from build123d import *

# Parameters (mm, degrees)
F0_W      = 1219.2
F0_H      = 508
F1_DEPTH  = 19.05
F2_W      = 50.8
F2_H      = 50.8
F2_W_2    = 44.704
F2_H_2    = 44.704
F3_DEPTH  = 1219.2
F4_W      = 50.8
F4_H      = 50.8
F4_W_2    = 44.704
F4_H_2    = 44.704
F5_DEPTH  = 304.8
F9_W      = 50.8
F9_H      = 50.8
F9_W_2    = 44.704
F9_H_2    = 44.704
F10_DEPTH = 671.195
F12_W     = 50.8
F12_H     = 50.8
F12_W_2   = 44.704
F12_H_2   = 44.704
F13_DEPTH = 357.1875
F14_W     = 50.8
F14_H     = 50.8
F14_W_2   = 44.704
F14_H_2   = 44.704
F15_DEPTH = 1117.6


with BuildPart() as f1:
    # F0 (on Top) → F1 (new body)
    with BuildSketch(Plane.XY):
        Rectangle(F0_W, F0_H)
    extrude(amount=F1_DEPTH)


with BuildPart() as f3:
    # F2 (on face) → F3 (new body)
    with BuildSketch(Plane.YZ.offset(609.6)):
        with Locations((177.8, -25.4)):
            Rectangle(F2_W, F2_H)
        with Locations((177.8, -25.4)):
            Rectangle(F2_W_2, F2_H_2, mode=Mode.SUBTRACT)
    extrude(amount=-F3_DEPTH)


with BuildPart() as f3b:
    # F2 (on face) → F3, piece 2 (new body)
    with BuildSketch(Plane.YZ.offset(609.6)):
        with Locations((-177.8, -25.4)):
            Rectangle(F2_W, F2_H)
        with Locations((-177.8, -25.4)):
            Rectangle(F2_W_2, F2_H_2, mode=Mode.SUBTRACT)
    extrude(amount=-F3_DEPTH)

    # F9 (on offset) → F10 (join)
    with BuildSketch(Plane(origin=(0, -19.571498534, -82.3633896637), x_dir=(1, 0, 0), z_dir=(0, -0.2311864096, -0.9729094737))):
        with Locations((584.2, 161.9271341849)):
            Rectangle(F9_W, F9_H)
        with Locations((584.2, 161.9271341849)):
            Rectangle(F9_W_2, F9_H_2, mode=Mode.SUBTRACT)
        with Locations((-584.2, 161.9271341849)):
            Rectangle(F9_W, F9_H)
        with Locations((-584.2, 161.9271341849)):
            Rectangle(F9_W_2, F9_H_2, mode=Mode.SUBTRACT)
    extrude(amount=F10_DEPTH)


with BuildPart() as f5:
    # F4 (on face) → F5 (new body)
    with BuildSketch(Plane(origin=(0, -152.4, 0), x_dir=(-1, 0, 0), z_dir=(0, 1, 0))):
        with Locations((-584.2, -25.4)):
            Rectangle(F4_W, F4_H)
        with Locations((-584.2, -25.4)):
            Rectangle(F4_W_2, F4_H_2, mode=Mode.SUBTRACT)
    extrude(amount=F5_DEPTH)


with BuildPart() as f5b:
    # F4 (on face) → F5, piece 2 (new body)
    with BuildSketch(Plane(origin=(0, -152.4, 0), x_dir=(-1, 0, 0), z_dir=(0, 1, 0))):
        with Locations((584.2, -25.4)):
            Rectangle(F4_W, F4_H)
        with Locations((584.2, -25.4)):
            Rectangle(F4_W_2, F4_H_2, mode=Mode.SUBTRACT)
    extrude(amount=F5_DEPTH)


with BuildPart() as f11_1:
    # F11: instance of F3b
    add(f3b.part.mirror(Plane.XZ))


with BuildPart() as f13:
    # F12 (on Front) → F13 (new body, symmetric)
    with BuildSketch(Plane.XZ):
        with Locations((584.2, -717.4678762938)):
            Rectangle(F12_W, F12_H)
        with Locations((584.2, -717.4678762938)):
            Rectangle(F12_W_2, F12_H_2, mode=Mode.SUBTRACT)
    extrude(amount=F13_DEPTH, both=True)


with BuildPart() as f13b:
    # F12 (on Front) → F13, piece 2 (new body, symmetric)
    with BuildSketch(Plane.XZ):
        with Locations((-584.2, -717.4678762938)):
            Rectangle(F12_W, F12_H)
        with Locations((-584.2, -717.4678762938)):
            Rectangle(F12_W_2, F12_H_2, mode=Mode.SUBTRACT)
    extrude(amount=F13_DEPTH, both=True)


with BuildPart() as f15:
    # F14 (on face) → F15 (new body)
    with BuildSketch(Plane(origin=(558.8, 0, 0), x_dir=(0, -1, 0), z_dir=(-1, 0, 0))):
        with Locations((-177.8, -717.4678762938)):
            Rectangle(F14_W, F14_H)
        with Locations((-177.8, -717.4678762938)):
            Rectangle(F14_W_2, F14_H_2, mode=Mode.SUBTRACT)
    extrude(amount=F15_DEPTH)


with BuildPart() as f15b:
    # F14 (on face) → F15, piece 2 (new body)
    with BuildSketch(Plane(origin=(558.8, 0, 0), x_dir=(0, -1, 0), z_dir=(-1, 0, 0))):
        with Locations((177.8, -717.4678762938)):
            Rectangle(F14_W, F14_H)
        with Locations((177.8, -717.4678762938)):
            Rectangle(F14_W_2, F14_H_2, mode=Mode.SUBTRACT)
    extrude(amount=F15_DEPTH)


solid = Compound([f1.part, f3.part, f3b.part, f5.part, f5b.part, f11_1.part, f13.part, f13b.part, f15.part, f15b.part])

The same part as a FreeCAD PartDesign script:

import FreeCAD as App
import Part
import Sketcher
from FreeCAD import Vector
Q = App.Units.Quantity


def add_polygon(sketch, points):
    """Adds a closed chain of lines whose ends are joined by coincident constraints."""
    first, n = sketch.GeometryCount, len(points)
    for a, b in zip(points, points[1:] + points[:1]):
        sketch.addGeometry(Part.LineSegment(App.Vector(*a, 0), App.Vector(*b, 0)), False)
    for i in range(n):
        sketch.addConstraint(Sketcher.Constraint("Coincident", first + i, 2, first + (i + 1) % n, 1))

doc = App.newDocument("Part")
body = doc.addObject("PartDesign::Body", "Body")

sketch1 = doc.addObject("Sketcher::SketchObject", "Sketch")
body.addObject(sketch1)
sketch1.AttachmentSupport = (doc.XY_Plane, [""])
sketch1.MapMode = "FlatFace"
add_polygon(sketch1, [(-610, 254), (-610, -254), (610, -254), (610, 254)])
sketch1.addConstraint([
    Sketcher.Constraint("Vertical", 0),
    Sketcher.Constraint("Horizontal", 1),
    Sketcher.Constraint("Vertical", 2),
    Sketcher.Constraint("Horizontal", 3),
    Sketcher.Constraint("Symmetric", 0, 2, 2, 2, -1, 1),
    Sketcher.Constraint("DistanceX", 1, 1, 1, 2, Q("48 in")),
    Sketcher.Constraint("DistanceY", 0, 2, 0, 1, Q("20 in")),
])
pad1 = doc.addObject("PartDesign::Pad", "Pad")
body.addObject(pad1)
pad1.Profile = sketch1
pad1.Length = Q("0.75 in")
body2 = doc.addObject("PartDesign::Body", "Body001")

sketch2 = doc.addObject("Sketcher::SketchObject", "Sketch001")
body2.addObject(sketch2)
sketch2.AttachmentSupport = (doc.getObject("YZ_Plane001"), [""])
sketch2.MapMode = "FlatFace"
sketch2.AttachmentOffset = App.Placement(Vector(0, 0, 24 * 25.4), App.Rotation())
add_polygon(sketch2, [(152, 0), (152, -51), (203, -51), (203, 0)])
add_polygon(sketch2, [(200, -48), (155, -48), (155, -3), (200, -3)])
sketch2.addConstraint([
    Sketcher.Constraint("Vertical", 0),
    Sketcher.Constraint("Horizontal", 1),
    Sketcher.Constraint("Vertical", 2),
    Sketcher.Constraint("Horizontal", 3),
    Sketcher.Constraint("Horizontal", 4),
    Sketcher.Constraint("Vertical", 5),
    Sketcher.Constraint("Horizontal", 6),
    Sketcher.Constraint("Vertical", 7),
    Sketcher.Constraint("PointOnObject", 2, 2, -1),
    Sketcher.Constraint("Equal", 3, 0),
    Sketcher.Constraint("Equal", 6, 5),
    Sketcher.Constraint("DistanceX", 1, 1, 1, 2, Q("2 in")),
    Sketcher.Constraint("DistanceX", -1, 1, 0, 2, Q("6 in")),
    Sketcher.Constraint("DistanceX", 4, 2, 4, 1, Q("1.76 in")),
    Sketcher.Constraint("DistanceX", -1, 1, 4, 2, Q("6.12 in")),
    Sketcher.Constraint("DistanceY", 4, 2, -1, 1, Q("1.88 in")),
])
pad2 = doc.addObject("PartDesign::Pad", "Pad001")
body2.addObject(pad2)
pad2.Profile = sketch2
pad2.Length = Q("48 in")
pad2.Reversed = True
body3 = doc.addObject("PartDesign::Body", "Body002")

sketch3 = doc.addObject("Sketcher::SketchObject", "Sketch002")
body3.addObject(sketch3)
sketch3.AttachmentSupport = (doc.getObject("YZ_Plane002"), [""])
sketch3.MapMode = "FlatFace"
sketch3.AttachmentOffset = App.Placement(Vector(0, 0, 24 * 25.4), App.Rotation())
add_polygon(sketch3, [(-203, 0), (-203, -51), (-152, -51), (-152, 0)])
add_polygon(sketch3, [(-155, -48), (-200, -48), (-200, -3), (-155, -3)])
sketch3.addConstraint([
    Sketcher.Constraint("Vertical", 0),
    Sketcher.Constraint("Horizontal", 1),
    Sketcher.Constraint("Vertical", 2),
    Sketcher.Constraint("Horizontal", 3),
    Sketcher.Constraint("Horizontal", 4),
    Sketcher.Constraint("Vertical", 5),
    Sketcher.Constraint("Horizontal", 6),
    Sketcher.Constraint("Vertical", 7),
    Sketcher.Constraint("PointOnObject", 2, 2, -1),
    Sketcher.Constraint("Equal", 3, 0),
    Sketcher.Constraint("Equal", 6, 5),
    Sketcher.Constraint("DistanceX", 1, 1, 1, 2, Q("2 in")),
    Sketcher.Constraint("DistanceX", 0, 2, -1, 1, Q("8 in")),
    Sketcher.Constraint("DistanceX", 4, 2, 4, 1, Q("1.76 in")),
    Sketcher.Constraint("DistanceX", 4, 2, -1, 1, Q("7.88 in")),
    Sketcher.Constraint("DistanceY", 4, 2, -1, 1, Q("1.88 in")),
])
pad3 = doc.addObject("PartDesign::Pad", "Pad002")
body3.addObject(pad3)
pad3.Profile = sketch3
pad3.Length = Q("48 in")
pad3.Reversed = True

sketch4 = doc.addObject("Sketcher::SketchObject", "Sketch003")
body3.addObject(sketch4)
sketch4.Placement = App.Placement(Vector(0, -19.571499, -82.36339), App.Rotation(Vector(1, 0, 0), Vector(0, -0.972909474, 0.23118641), Vector(0, -0.23118641, -0.972909474), "ZXY"))
add_polygon(sketch4, [(559, 187), (559, 137), (610, 137), (610, 187)])
add_polygon(sketch4, [(607, 140), (562, 140), (562, 184), (607, 184)])
add_polygon(sketch4, [(-610, 187), (-610, 137), (-559, 137), (-559, 187)])
add_polygon(sketch4, [(-562, 140), (-607, 140), (-607, 184), (-562, 184)])
sketch4.addConstraint([
    Sketcher.Constraint("Vertical", 0),
    Sketcher.Constraint("Horizontal", 1),
    Sketcher.Constraint("Vertical", 2),
    Sketcher.Constraint("Horizontal", 3),
    Sketcher.Constraint("Horizontal", 4),
    Sketcher.Constraint("Vertical", 5),
    Sketcher.Constraint("Horizontal", 6),
    Sketcher.Constraint("Vertical", 7),
    Sketcher.Constraint("Vertical", 8),
    Sketcher.Constraint("Horizontal", 9),
    Sketcher.Constraint("Vertical", 10),
    Sketcher.Constraint("Horizontal", 11),
    Sketcher.Constraint("Horizontal", 12),
    Sketcher.Constraint("Vertical", 13),
    Sketcher.Constraint("Horizontal", 14),
    Sketcher.Constraint("Vertical", 15),
    Sketcher.Constraint("Symmetric", 1, 2, 8, 2, -2),
    Sketcher.Constraint("Symmetric", 3, 2, 10, 2, -2),
    Sketcher.Constraint("Symmetric", 7, 2, 12, 2, -2),
    Sketcher.Constraint("Symmetric", 5, 2, 14, 2, -2),
    Sketcher.Constraint("Equal", 11, 0),
    Sketcher.Constraint("Equal", 14, 5),
    Sketcher.Constraint("DistanceX", 1, 1, 1, 2, Q("2 in")),
    Sketcher.Constraint("DistanceX", -1, 1, 0, 2, Q("22 in")),
    Sketcher.Constraint("DistanceX", 4, 2, 4, 1, Q("1.76 in")),
    Sketcher.Constraint("DistanceX", -1, 1, 4, 2, Q("22.12 in")),
    Sketcher.Constraint("DistanceY", 0, 2, 4, 2, Q("0.12 in")),
    Sketcher.Constraint("DistanceY", -1, 1, 0, 2, Q("136.527134 mm")),
])
pad4 = doc.addObject("PartDesign::Pad", "Pad003")
body3.addObject(pad4)
pad4.Profile = sketch4
pad4.Length = Q("26.425 in")
body4 = doc.addObject("PartDesign::Body", "Body003")

sketch5 = doc.addObject("Sketcher::SketchObject", "Sketch004")
body4.addObject(sketch5)
sketch5.AttachmentSupport = (doc.getObject("XZ_Plane003"), [""])
sketch5.MapMode = "FlatFace"
sketch5.AttachmentOffset = App.Placement(Vector(0, 0, 6 * 25.4), App.Rotation())
add_polygon(sketch5, [(610, 0), (610, -51), (559, -51), (559, 0)])
add_polygon(sketch5, [(562, -48), (607, -48), (607, -3), (562, -3)])
sketch5.addConstraint([
    Sketcher.Constraint("Vertical", 0),
    Sketcher.Constraint("Horizontal", 1),
    Sketcher.Constraint("Vertical", 2),
    Sketcher.Constraint("Horizontal", 3),
    Sketcher.Constraint("Horizontal", 4),
    Sketcher.Constraint("Vertical", 5),
    Sketcher.Constraint("Horizontal", 6),
    Sketcher.Constraint("Vertical", 7),
    Sketcher.Constraint("PointOnObject", 2, 2, -1),
    Sketcher.Constraint("Equal", 3, 0),
    Sketcher.Constraint("Equal", 6, 5),
    Sketcher.Constraint("DistanceX", 1, 2, 1, 1, Q("2 in")),
    Sketcher.Constraint("DistanceX", -1, 1, 0, 2, Q("24 in")),
    Sketcher.Constraint("DistanceX", 4, 1, 4, 2, Q("1.76 in")),
    Sketcher.Constraint("DistanceX", -1, 1, 4, 2, Q("23.88 in")),
    Sketcher.Constraint("DistanceY", 4, 2, -1, 1, Q("1.88 in")),
])
pad5 = doc.addObject("PartDesign::Pad", "Pad004")
body4.addObject(pad5)
pad5.Profile = sketch5
pad5.Length = Q("12 in")
pad5.Reversed = True
body5 = doc.addObject("PartDesign::Body", "Body004")

sketch6 = doc.addObject("Sketcher::SketchObject", "Sketch005")
body5.addObject(sketch6)
sketch6.AttachmentSupport = (doc.getObject("XZ_Plane004"), [""])
sketch6.MapMode = "FlatFace"
sketch6.AttachmentOffset = App.Placement(Vector(0, 0, 6 * 25.4), App.Rotation())
add_polygon(sketch6, [(-559, 0), (-559, -51), (-610, -51), (-610, 0)])
add_polygon(sketch6, [(-607, -48), (-562, -48), (-562, -3), (-607, -3)])
sketch6.addConstraint([
    Sketcher.Constraint("Vertical", 0),
    Sketcher.Constraint("Horizontal", 1),
    Sketcher.Constraint("Vertical", 2),
    Sketcher.Constraint("Horizontal", 3),
    Sketcher.Constraint("Horizontal", 4),
    Sketcher.Constraint("Vertical", 5),
    Sketcher.Constraint("Horizontal", 6),
    Sketcher.Constraint("Vertical", 7),
    Sketcher.Constraint("PointOnObject", 2, 2, -1),
    Sketcher.Constraint("Equal", 3, 0),
    Sketcher.Constraint("Equal", 6, 5),
    Sketcher.Constraint("DistanceX", 1, 2, 1, 1, Q("2 in")),
    Sketcher.Constraint("DistanceX", 0, 2, -1, 1, Q("22 in")),
    Sketcher.Constraint("DistanceX", 4, 1, 4, 2, Q("1.76 in")),
    Sketcher.Constraint("DistanceX", 4, 2, -1, 1, Q("22.12 in")),
    Sketcher.Constraint("DistanceY", 4, 2, -1, 1, Q("1.88 in")),
])
pad6 = doc.addObject("PartDesign::Pad", "Pad005")
body5.addObject(pad6)
pad6.Profile = sketch6
pad6.Length = Q("12 in")
pad6.Reversed = True
body6 = doc.addObject("PartDesign::Body", "Body005")
doc.recompute()

mirroring = doc.addObject("Part::Mirroring", "Mirroring")
mirroring.Source = body3
mirroring.Base = Vector(0, 0, 0)
mirroring.Normal = Vector(0, -1, 0)
body6.BaseFeature = mirroring
doc.recompute()
body7 = doc.addObject("PartDesign::Body", "Body006")

sketch7 = doc.addObject("Sketcher::SketchObject", "Sketch006")
body7.addObject(sketch7)
sketch7.AttachmentSupport = (doc.getObject("XZ_Plane006"), [""])
sketch7.MapMode = "FlatFace"
add_polygon(sketch7, [(559, -692), (559, -743), (610, -743), (610, -692)])
add_polygon(sketch7, [(607, -740), (562, -740), (562, -695), (607, -695)])
sketch7.addConstraint([
    Sketcher.Constraint("Vertical", 0),
    Sketcher.Constraint("Horizontal", 1),
    Sketcher.Constraint("Vertical", 2),
    Sketcher.Constraint("Horizontal", 3),
    Sketcher.Constraint("Horizontal", 4),
    Sketcher.Constraint("Vertical", 5),
    Sketcher.Constraint("Horizontal", 6),
    Sketcher.Constraint("Vertical", 7),
    Sketcher.Constraint("Equal", 3, 0),
    Sketcher.Constraint("Equal", 6, 5),
    Sketcher.Constraint("DistanceX", 1, 1, 1, 2, Q("2 in")),
    Sketcher.Constraint("DistanceX", -1, 1, 0, 2, Q("22 in")),
    Sketcher.Constraint("DistanceX", 4, 2, 4, 1, Q("1.76 in")),
    Sketcher.Constraint("DistanceX", -1, 1, 4, 2, Q("22.12 in")),
    Sketcher.Constraint("DistanceY", 0, 2, 4, 2, Q("0.12 in")),
    Sketcher.Constraint("DistanceY", 0, 2, -1, 1, Q("742.867876 mm")),
])
pad7 = doc.addObject("PartDesign::Pad", "Pad006")
body7.addObject(pad7)
pad7.Profile = sketch7
pad7.Length = Q("28.125 in")
pad7.Midplane = True
body8 = doc.addObject("PartDesign::Body", "Body007")

sketch8 = doc.addObject("Sketcher::SketchObject", "Sketch007")
body8.addObject(sketch8)
sketch8.AttachmentSupport = (doc.getObject("XZ_Plane007"), [""])
sketch8.MapMode = "FlatFace"
add_polygon(sketch8, [(-610, -692), (-610, -743), (-559, -743), (-559, -692)])
add_polygon(sketch8, [(-562, -740), (-607, -740), (-607, -695), (-562, -695)])
sketch8.addConstraint([
    Sketcher.Constraint("Vertical", 0),
    Sketcher.Constraint("Horizontal", 1),
    Sketcher.Constraint("Vertical", 2),
    Sketcher.Constraint("Horizontal", 3),
    Sketcher.Constraint("Horizontal", 4),
    Sketcher.Constraint("Vertical", 5),
    Sketcher.Constraint("Horizontal", 6),
    Sketcher.Constraint("Vertical", 7),
    Sketcher.Constraint("Equal", 3, 0),
    Sketcher.Constraint("Equal", 6, 5),
    Sketcher.Constraint("DistanceX", 1, 1, 1, 2, Q("2 in")),
    Sketcher.Constraint("DistanceX", 0, 2, -1, 1, Q("24 in")),
    Sketcher.Constraint("DistanceX", 4, 2, 4, 1, Q("1.76 in")),
    Sketcher.Constraint("DistanceX", 4, 2, -1, 1, Q("23.88 in")),
    Sketcher.Constraint("DistanceY", 0, 2, 4, 2, Q("0.12 in")),
    Sketcher.Constraint("DistanceY", 0, 2, -1, 1, Q("742.867876 mm")),
])
pad8 = doc.addObject("PartDesign::Pad", "Pad007")
body8.addObject(pad8)
pad8.Profile = sketch8
pad8.Length = Q("28.125 in")
pad8.Midplane = True
body9 = doc.addObject("PartDesign::Body", "Body008")

sketch9 = doc.addObject("Sketcher::SketchObject", "Sketch008")
body9.addObject(sketch9)
sketch9.AttachmentSupport = (doc.getObject("YZ_Plane008"), [""])
sketch9.MapMode = "FlatFace"
sketch9.AttachmentOffset = App.Placement(Vector(0, 0, 22 * 25.4), App.Rotation())
add_polygon(sketch9, [(203, -692), (203, -743), (152, -743), (152, -692)])
add_polygon(sketch9, [(155, -740), (200, -740), (200, -695), (155, -695)])
sketch9.addConstraint([
    Sketcher.Constraint("Vertical", 0),
    Sketcher.Constraint("Horizontal", 1),
    Sketcher.Constraint("Vertical", 2),
    Sketcher.Constraint("Horizontal", 3),
    Sketcher.Constraint("Horizontal", 4),
    Sketcher.Constraint("Vertical", 5),
    Sketcher.Constraint("Horizontal", 6),
    Sketcher.Constraint("Vertical", 7),
    Sketcher.Constraint("Equal", 3, 0),
    Sketcher.Constraint("Equal", 6, 5),
    Sketcher.Constraint("DistanceX", 1, 2, 1, 1, Q("2 in")),
    Sketcher.Constraint("DistanceX", -1, 1, 0, 2, Q("8 in")),
    Sketcher.Constraint("DistanceX", 4, 1, 4, 2, Q("1.76 in")),
    Sketcher.Constraint("DistanceX", -1, 1, 4, 2, Q("7.88 in")),
    Sketcher.Constraint("DistanceY", 0, 2, 4, 2, Q("0.12 in")),
    Sketcher.Constraint("DistanceY", 0, 2, -1, 1, Q("742.867876 mm")),
])
pad9 = doc.addObject("PartDesign::Pad", "Pad008")
body9.addObject(pad9)
pad9.Profile = sketch9
pad9.Length = Q("44 in")
pad9.Reversed = True
body10 = doc.addObject("PartDesign::Body", "Body009")

sketch10 = doc.addObject("Sketcher::SketchObject", "Sketch009")
body10.addObject(sketch10)
sketch10.AttachmentSupport = (doc.getObject("YZ_Plane009"), [""])
sketch10.MapMode = "FlatFace"
sketch10.AttachmentOffset = App.Placement(Vector(0, 0, 22 * 25.4), App.Rotation())
add_polygon(sketch10, [(-152, -692), (-152, -743), (-203, -743), (-203, -692)])
add_polygon(sketch10, [(-200, -740), (-155, -740), (-155, -695), (-200, -695)])
sketch10.addConstraint([
    Sketcher.Constraint("Vertical", 0),
    Sketcher.Constraint("Horizontal", 1),
    Sketcher.Constraint("Vertical", 2),
    Sketcher.Constraint("Horizontal", 3),
    Sketcher.Constraint("Horizontal", 4),
    Sketcher.Constraint("Vertical", 5),
    Sketcher.Constraint("Horizontal", 6),
    Sketcher.Constraint("Vertical", 7),
    Sketcher.Constraint("Equal", 3, 0),
    Sketcher.Constraint("Equal", 6, 5),
    Sketcher.Constraint("DistanceX", 1, 2, 1, 1, Q("2 in")),
    Sketcher.Constraint("DistanceX", 0, 2, -1, 1, Q("6 in")),
    Sketcher.Constraint("DistanceX", 4, 1, 4, 2, Q("1.76 in")),
    Sketcher.Constraint("DistanceX", 4, 2, -1, 1, Q("6.12 in")),
    Sketcher.Constraint("DistanceY", 0, 2, 4, 2, Q("0.12 in")),
    Sketcher.Constraint("DistanceY", 0, 2, -1, 1, Q("742.867876 mm")),
])
pad10 = doc.addObject("PartDesign::Pad", "Pad009")
body10.addObject(pad10)
pad10.Profile = sketch10
pad10.Length = Q("44 in")
pad10.Reversed = True
mirroring.Visibility = False

doc.recompute()
